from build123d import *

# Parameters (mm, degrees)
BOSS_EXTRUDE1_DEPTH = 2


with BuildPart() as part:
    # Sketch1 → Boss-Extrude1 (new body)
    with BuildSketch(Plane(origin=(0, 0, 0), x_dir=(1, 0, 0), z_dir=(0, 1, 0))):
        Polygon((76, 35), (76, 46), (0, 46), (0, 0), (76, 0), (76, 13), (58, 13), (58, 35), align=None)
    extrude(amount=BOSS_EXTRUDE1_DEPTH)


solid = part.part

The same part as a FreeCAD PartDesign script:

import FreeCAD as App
import Part
import Sketcher
from FreeCAD import Vector

doc = App.newDocument("Part")
body = doc.addObject("PartDesign::Body", "Body")

sketch1 = body.newObject("Sketcher::SketchObject", "Sketch")
sketch1.AttachmentSupport = (doc.getObject("XZ_Plane"), [""])
sketch1.MapMode = "FlatFace"
sketch1.addGeometry(Part.LineSegment(Vector(76, -35, 0), Vector(76, -46, 0)), False)
sketch1.addGeometry(Part.LineSegment(Vector(76, -46, 0), Vector(0, -46, 0)), False)
sketch1.addGeometry(Part.LineSegment(Vector(0, -46, 0), Vector(0, 0, 0)), False)
sketch1.addGeometry(Part.LineSegment(Vector(0, 0, 0), Vector(76, 0, 0)), False)
sketch1.addGeometry(Part.LineSegment(Vector(76, 0, 0), Vector(76, -13, 0)), False)
sketch1.addGeometry(Part.LineSegment(Vector(76, -13, 0), Vector(58, -13, 0)), False)
sketch1.addGeometry(Part.LineSegment(Vector(58, -13, 0), Vector(58, -35, 0)), False)
sketch1.addGeometry(Part.LineSegment(Vector(58, -35, 0), Vector(76, -35, 0)), False)
sketch1.addConstraint(Sketcher.Constraint("Coincident", 0, 2, 1, 1))
sketch1.addConstraint(Sketcher.Constraint("Coincident", 1, 2, 2, 1))
sketch1.addConstraint(Sketcher.Constraint("Coincident", 2, 2, 3, 1))
sketch1.addConstraint(Sketcher.Constraint("Coincident", 3, 2, 4, 1))
sketch1.addConstraint(Sketcher.Constraint("Coincident", 4, 2, 5, 1))
sketch1.addConstraint(Sketcher.Constraint("Coincident", 5, 2, 6, 1))
sketch1.addConstraint(Sketcher.Constraint("Coincident", 6, 2, 7, 1))
sketch1.addConstraint(Sketcher.Constraint("Coincident", 7, 2, 0, 1))
sketch1.addConstraint(Sketcher.Constraint("Vertical", 0))
sketch1.addConstraint(Sketcher.Constraint("Horizontal", 1))
sketch1.addConstraint(Sketcher.Constraint("Vertical", 2))
sketch1.addConstraint(Sketcher.Constraint("Horizontal", 3))
sketch1.addConstraint(Sketcher.Constraint("Vertical", 4))
sketch1.addConstraint(Sketcher.Constraint("Horizontal", 5))
sketch1.addConstraint(Sketcher.Constraint("Vertical", 6))
sketch1.addConstraint(Sketcher.Constraint("Horizontal", 7))
sketch1.addConstraint(Sketcher.Constraint("Coincident", 2, 2, -1, 1))
sketch1.addConstraint(Sketcher.Constraint("Vertical", 0, 2, 3, 2))
sketch1.addConstraint(Sketcher.Constraint("DistanceX", 1, 2, 1, 1, 76.0))
sketch1.addConstraint(Sketcher.Constraint("DistanceX", 5, 2, 5, 1, 18.0))
sketch1.addConstraint(Sketcher.Constraint("DistanceY", 0, 2, 0, 1, 11.0))
sketch1.addConstraint(Sketcher.Constraint("DistanceY", 2, 1, 2, 2, 46.0))
sketch1.addConstraint(Sketcher.Constraint("DistanceY", 4, 2, 4, 1, 13.0))
pad1 = body.newObject("PartDesign::Pad", "Pad")
pad1.Profile = sketch1
pad1.Length = 2
pad1.Reversed = True

doc.recompute()
